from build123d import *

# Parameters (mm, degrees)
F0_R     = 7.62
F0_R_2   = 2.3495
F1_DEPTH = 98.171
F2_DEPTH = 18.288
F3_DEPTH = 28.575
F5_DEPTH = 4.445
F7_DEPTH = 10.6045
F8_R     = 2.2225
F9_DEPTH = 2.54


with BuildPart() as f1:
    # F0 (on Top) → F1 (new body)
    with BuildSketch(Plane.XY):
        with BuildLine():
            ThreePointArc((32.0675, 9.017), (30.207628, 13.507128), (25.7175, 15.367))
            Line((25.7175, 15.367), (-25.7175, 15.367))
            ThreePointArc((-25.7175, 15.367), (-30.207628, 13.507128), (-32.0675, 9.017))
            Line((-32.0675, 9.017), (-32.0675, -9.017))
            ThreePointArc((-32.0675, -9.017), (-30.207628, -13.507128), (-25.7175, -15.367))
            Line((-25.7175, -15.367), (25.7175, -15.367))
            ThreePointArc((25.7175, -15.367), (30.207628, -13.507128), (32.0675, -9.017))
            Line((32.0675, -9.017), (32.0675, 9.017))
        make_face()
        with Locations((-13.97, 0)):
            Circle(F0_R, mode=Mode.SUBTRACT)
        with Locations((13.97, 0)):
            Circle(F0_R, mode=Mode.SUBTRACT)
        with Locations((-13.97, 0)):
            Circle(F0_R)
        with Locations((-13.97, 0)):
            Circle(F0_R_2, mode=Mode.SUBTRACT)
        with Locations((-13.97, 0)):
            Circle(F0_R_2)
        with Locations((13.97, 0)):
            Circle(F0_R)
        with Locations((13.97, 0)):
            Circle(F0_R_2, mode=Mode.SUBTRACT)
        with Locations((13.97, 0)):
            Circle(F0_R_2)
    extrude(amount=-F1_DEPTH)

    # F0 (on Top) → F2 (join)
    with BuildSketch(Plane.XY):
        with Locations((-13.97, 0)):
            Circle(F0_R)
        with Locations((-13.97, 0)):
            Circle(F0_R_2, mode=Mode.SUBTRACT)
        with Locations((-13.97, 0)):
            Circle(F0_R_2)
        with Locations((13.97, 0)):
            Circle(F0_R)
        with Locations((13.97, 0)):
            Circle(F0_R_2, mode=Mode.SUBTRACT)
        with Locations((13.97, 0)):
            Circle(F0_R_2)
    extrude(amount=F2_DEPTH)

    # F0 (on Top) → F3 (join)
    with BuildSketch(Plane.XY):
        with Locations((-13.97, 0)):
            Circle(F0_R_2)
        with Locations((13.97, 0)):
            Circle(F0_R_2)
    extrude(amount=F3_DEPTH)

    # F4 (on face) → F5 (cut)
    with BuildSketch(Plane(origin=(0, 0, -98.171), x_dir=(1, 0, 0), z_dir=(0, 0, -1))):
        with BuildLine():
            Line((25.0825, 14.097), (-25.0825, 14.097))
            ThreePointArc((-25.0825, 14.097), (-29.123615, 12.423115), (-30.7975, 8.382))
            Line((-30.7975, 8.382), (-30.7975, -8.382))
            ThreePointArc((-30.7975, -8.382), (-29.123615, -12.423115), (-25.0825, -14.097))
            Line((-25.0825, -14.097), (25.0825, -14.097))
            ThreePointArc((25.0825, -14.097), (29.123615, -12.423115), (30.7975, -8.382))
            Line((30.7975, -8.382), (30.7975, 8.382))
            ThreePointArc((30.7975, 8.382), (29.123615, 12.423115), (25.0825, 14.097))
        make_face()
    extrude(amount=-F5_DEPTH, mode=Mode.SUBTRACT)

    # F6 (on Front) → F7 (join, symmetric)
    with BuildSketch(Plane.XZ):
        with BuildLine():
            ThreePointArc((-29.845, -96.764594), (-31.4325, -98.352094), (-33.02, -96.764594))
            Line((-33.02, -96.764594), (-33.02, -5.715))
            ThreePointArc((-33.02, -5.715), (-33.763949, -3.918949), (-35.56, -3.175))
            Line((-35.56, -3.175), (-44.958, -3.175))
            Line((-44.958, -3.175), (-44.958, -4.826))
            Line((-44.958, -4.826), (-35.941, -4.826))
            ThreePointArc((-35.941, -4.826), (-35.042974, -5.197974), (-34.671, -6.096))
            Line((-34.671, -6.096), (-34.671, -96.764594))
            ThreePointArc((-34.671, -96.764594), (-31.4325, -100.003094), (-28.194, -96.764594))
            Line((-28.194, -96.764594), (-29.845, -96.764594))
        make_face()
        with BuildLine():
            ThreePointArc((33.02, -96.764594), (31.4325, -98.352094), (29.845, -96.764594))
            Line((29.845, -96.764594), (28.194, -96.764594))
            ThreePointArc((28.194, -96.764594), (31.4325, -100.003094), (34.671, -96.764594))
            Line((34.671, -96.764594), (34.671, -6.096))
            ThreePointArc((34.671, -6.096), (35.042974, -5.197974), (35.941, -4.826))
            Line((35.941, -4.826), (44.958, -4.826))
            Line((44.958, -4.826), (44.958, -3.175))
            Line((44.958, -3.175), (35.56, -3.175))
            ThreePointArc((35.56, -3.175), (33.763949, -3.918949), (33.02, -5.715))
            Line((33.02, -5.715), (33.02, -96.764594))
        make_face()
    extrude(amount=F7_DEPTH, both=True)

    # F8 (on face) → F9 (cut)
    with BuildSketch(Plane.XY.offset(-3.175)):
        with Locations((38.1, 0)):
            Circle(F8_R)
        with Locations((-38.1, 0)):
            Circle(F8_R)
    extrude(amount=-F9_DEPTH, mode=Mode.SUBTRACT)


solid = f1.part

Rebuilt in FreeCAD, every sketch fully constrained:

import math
import FreeCAD as App
import Part
import Sketcher

V = App.Vector
Q = App.Units.Quantity

doc = App.newDocument("Part")
body = doc.addObject("PartDesign::Body", "Body")

# Sketch on XY plane
sketch1 = body.newObject("Sketcher::SketchObject", "Sketch")
sketch1.AttachmentSupport = (doc.getObject("XY_Plane"), [""])
sketch1.MapMode = "FlatFace"
sketch1.addGeometry([
    Part.ArcOfCircle(Part.Circle(V(26, 9, 0), V(0, 0, 1), 6), math.radians(0), math.radians(90)),  # 0
    Part.LineSegment(V(26, 15, 0), V(-26, 15, 0)),  # 1
    Part.ArcOfCircle(Part.Circle(V(-26, 9, 0), V(0, 0, 1), 6), math.radians(90), math.radians(180)),  # 2
    Part.LineSegment(V(-32, 9, 0), V(-32, -9, 0)),  # 3
    Part.ArcOfCircle(Part.Circle(V(-26, -9, 0), V(0, 0, 1), 6), math.radians(-180), math.radians(-90)),  # 4
    Part.LineSegment(V(-26, -15, 0), V(26, -15, 0)),  # 5
    Part.ArcOfCircle(Part.Circle(V(26, -9, 0), V(0, 0, 1), 6), math.radians(-90), math.radians(0)),  # 6
    Part.LineSegment(V(32, -9, 0), V(32, 9, 0)),  # 7
], False)
sketch1.addConstraint([
    Sketcher.Constraint("Tangent", 0, 2, 1, 1),
    Sketcher.Constraint("Tangent", 1, 2, 2, 1),
    Sketcher.Constraint("Tangent", 2, 2, 3, 1),
    Sketcher.Constraint("Tangent", 3, 2, 4, 1),
    Sketcher.Constraint("Tangent", 4, 2, 5, 1),
    Sketcher.Constraint("Tangent", 5, 2, 6, 1),
    Sketcher.Constraint("Tangent", 6, 2, 7, 1),
    Sketcher.Constraint("Tangent", 7, 2, 0, 1),
    Sketcher.Constraint("Horizontal", 1),
    Sketcher.Constraint("Vertical", 3),
    Sketcher.Constraint("Horizontal", 5),
    Sketcher.Constraint("Vertical", 7),
    Sketcher.Constraint("Equal", 0, 2),
    Sketcher.Constraint("Equal", 2, 4),
    Sketcher.Constraint("Equal", 4, 6),
    Sketcher.Constraint("Symmetric", 0, 3, 4, 3, -1, 1),
    Sketcher.Constraint("Radius", 0, Q("0.25 in")),
    Sketcher.Constraint("DistanceY", 3, 2, 3, 1, Q("0.71 in")),
    Sketcher.Constraint("DistanceX", 1, 2, 1, 1, Q("2.025 in")),
])
pad1 = body.newObject("PartDesign::Pad", "Pad")
pad1.Profile = sketch1
pad1.Length = Q("3.865 in")
pad1.Reversed = True

# Sketch on XY plane
sketch2 = body.newObject("Sketcher::SketchObject", "Sketch001")
sketch2.AttachmentSupport = (doc.getObject("XY_Plane"), [""])
sketch2.MapMode = "FlatFace"
sketch2.addGeometry([
    Part.Circle(V(-14, 0, 0), V(0, 0, 1), 8),
    Part.Circle(V(14, 0, 0), V(0, 0, 1), 8),
], False)
sketch2.addConstraint([
    Sketcher.Constraint("Equal", 0, 1),
    Sketcher.Constraint("Symmetric", 0, 3, 1, 3, -1, 1),
    Sketcher.Constraint("PointOnObject", 0, 3, -1),
    Sketcher.Constraint("Diameter", 0, Q("0.6 in")),
    Sketcher.Constraint("DistanceX", 0, 3, 1, 3, Q("1.1 in")),
])
pad2 = body.newObject("PartDesign::Pad", "Pad001")
pad2.Profile = sketch2
pad2.Length = Q("0.72 in")

# Sketch on XY plane
sketch3 = body.newObject("Sketcher::SketchObject", "Sketch002")
sketch3.AttachmentSupport = (doc.getObject("XY_Plane"), [""])
sketch3.MapMode = "FlatFace"
sketch3.addGeometry([
    Part.Circle(V(-14, 0, 0), V(0, 0, 1), 2.3),
    Part.Circle(V(14, 0, 0), V(0, 0, 1), 2.3),
], False)
sketch3.addConstraint([
    Sketcher.Constraint("Equal", 0, 1),
    Sketcher.Constraint("Symmetric", 0, 3, 1, 3, -1, 1),
    Sketcher.Constraint("PointOnObject", 0, 3, -1),
    Sketcher.Constraint("Diameter", 0, Q("0.185 in")),
    Sketcher.Constraint("DistanceX", 0, 3, 1, 3, Q("1.1 in")),
])
pad3 = body.newObject("PartDesign::Pad", "Pad002")
pad3.Profile = sketch3
pad3.Length = Q("1.125 in")

# Sketch on XY plane
sketch4 = body.newObject("Sketcher::SketchObject", "Sketch003")
sketch4.AttachmentSupport = (doc.getObject("XY_Plane"), [""])
sketch4.MapMode = "FlatFace"
sketch4.AttachmentOffset = App.Placement(V(0, 0, -3.865 * 25.4), App.Rotation())
sketch4.addGeometry([
    Part.LineSegment(V(25, -14, 0), V(-25, -14, 0)),  # 0
    Part.ArcOfCircle(Part.Circle(V(-25, -8, 0), V(0, 0, 1), 6), math.radians(-180), math.radians(-90)),  # 1
    Part.LineSegment(V(-31, -8, 0), V(-31, 8, 0)),  # 2
    Part.ArcOfCircle(Part.Circle(V(-25, 8, 0), V(0, 0, 1), 6), math.radians(90), math.radians(180)),  # 3
    Part.LineSegment(V(-25, 14, 0), V(25, 14, 0)),  # 4
    Part.ArcOfCircle(Part.Circle(V(25, 8, 0), V(0, 0, 1), 6), math.radians(0), math.radians(90)),  # 5
    Part.LineSegment(V(31, 8, 0), V(31, -8, 0)),  # 6
    Part.ArcOfCircle(Part.Circle(V(25, -8, 0), V(0, 0, 1), 6), math.radians(-90), math.radians(0)),  # 7
], False)
sketch4.addConstraint([
    Sketcher.Constraint("Tangent", 0, 2, 1, 2),
    Sketcher.Constraint("Tangent", 1, 1, 2, 1),
    Sketcher.Constraint("Tangent", 2, 2, 3, 2),
    Sketcher.Constraint("Tangent", 3, 1, 4, 1),
    Sketcher.Constraint("Tangent", 4, 2, 5, 2),
    Sketcher.Constraint("Tangent", 5, 1, 6, 1),
    Sketcher.Constraint("Tangent", 6, 2, 7, 2),
    Sketcher.Constraint("Tangent", 7, 1, 0, 1),
    Sketcher.Constraint("Horizontal", 0),
    Sketcher.Constraint("Vertical", 2),
    Sketcher.Constraint("Horizontal", 4),
    Sketcher.Constraint("Vertical", 6),
    Sketcher.Constraint("Equal", 1, 3),
    Sketcher.Constraint("Equal", 3, 5),
    Sketcher.Constraint("Equal", 5, 7),
    Sketcher.Constraint("Symmetric", 1, 3, 5, 3, -1, 1),
    Sketcher.Constraint("Radius", 1, Q("0.225 in")),
    Sketcher.Constraint("DistanceY", 2, 1, 2, 2, Q("0.66 in")),
    Sketcher.Constraint("DistanceX", 1, 1, 7, 3, Q("2.2 in")),
])
pocket1 = body.newObject("PartDesign::Pocket", "Pocket")
pocket1.Profile = sketch4
pocket1.Length = Q("0.175 in")
pocket1.Reversed = True

# Sketch on XZ plane
sketch5 = body.newObject("Sketcher::SketchObject", "Sketch004")
sketch5.AttachmentSupport = (doc.getObject("XZ_Plane"), [""])
sketch5.MapMode = "FlatFace"
sketch5.addGeometry([
    Part.ArcOfCircle(Part.Circle(V(-31.4, -96.8, 0), V(0, 0, 1), 1.6), math.radians(180), math.radians(360)),  # 0
    Part.LineSegment(V(-33, -96.8, 0), V(-33, -5.7, 0)),  # 1
    Part.ArcOfCircle(Part.Circle(V(-35.6, -5.7, 0), V(0, 0, 1), 2.5), math.radians(0), math.radians(90)),  # 2
    Part.LineSegment(V(-35.6, -3.2, 0), V(-45, -3.2, 0)),  # 3
    Part.LineSegment(V(-45, -3.2, 0), V(-45, -4.8, 0)),  # 4
    Part.LineSegment(V(-45, -4.8, 0), V(-35.9, -4.8, 0)),  # 5
    Part.ArcOfCircle(Part.Circle(V(-35.9, -6.1, 0), V(0, 0, 1), 1.3), math.radians(0), math.radians(90)),  # 6
    Part.LineSegment(V(-34.7, -6.1, 0), V(-34.7, -96.8, 0)),  # 7
    Part.ArcOfCircle(Part.Circle(V(-31.4, -96.8, 0), V(0, 0, 1), 3.2), math.radians(180), math.radians(360)),  # 8
    Part.LineSegment(V(-28.2, -96.8, 0), V(-29.8, -96.8, 0)),  # 9
    Part.ArcOfCircle(Part.Circle(V(31.4, -96.8, 0), V(0, 0, 1), 1.6), math.radians(180), math.radians(360)),  # 10
    Part.LineSegment(V(29.8, -96.8, 0), V(28.2, -96.8, 0)),  # 11
    Part.ArcOfCircle(Part.Circle(V(31.4, -96.8, 0), V(0, 0, 1), 3.2), math.radians(180), math.radians(360)),  # 12
    Part.LineSegment(V(34.7, -96.8, 0), V(34.7, -6.1, 0)),  # 13
    Part.ArcOfCircle(Part.Circle(V(35.9, -6.1, 0), V(0, 0, 1), 1.3), math.radians(90), math.radians(180)),  # 14
    Part.LineSegment(V(35.9, -4.8, 0), V(45, -4.8, 0)),  # 15
    Part.LineSegment(V(45, -4.8, 0), V(45, -3.2, 0)),  # 16
    Part.LineSegment(V(45, -3.2, 0), V(35.6, -3.2, 0)),  # 17
    Part.ArcOfCircle(Part.Circle(V(35.6, -5.7, 0), V(0, 0, 1), 2.5), math.radians(90), math.radians(180)),  # 18
    Part.LineSegment(V(33, -5.7, 0), V(33, -96.8, 0)),  # 19
], False)
sketch5.addConstraint([
    Sketcher.Constraint("Tangent", 0, 1, 1, 1),
    Sketcher.Constraint("Tangent", 1, 2, 2, 1),
    Sketcher.Constraint("Tangent", 2, 2, 3, 1),
    Sketcher.Constraint("Coincident", 3, 2, 4, 1),
    Sketcher.Constraint("Coincident", 4, 2, 5, 1),
    Sketcher.Constraint("Tangent", 5, 2, 6, 2),
    Sketcher.Constraint("Tangent", 6, 1, 7, 1),
    Sketcher.Constraint("Tangent", 7, 2, 8, 1),
    Sketcher.Constraint("Coincident", 8, 2, 9, 1),
    Sketcher.Constraint("Coincident", 9, 2, 0, 2),
    Sketcher.Constraint("Coincident", 10, 1, 11, 1),
    Sketcher.Constraint("Coincident", 11, 2, 12, 1),
    Sketcher.Constraint("Tangent", 12, 2, 13, 1),
    Sketcher.Constraint("Tangent", 13, 2, 14, 2),
    Sketcher.Constraint("Tangent", 14, 1, 15, 1),
    Sketcher.Constraint("Coincident", 15, 2, 16, 1),
    Sketcher.Constraint("Coincident", 16, 2, 17, 1),
    Sketcher.Constraint("Tangent", 17, 2, 18, 1),
    Sketcher.Constraint("Tangent", 18, 2, 19, 1),
    Sketcher.Constraint("Tangent", 19, 2, 10, 2),
    Sketcher.Constraint("Vertical", 1),
    Sketcher.Constraint("Horizontal", 3),
    Sketcher.Constraint("Vertical", 4),
    Sketcher.Constraint("Horizontal", 5),
    Sketcher.Constraint("Vertical", 7),
    Sketcher.Constraint("Horizontal", 9),
    Sketcher.Constraint("Horizontal", 11),
    Sketcher.Constraint("Vertical", 13),
    Sketcher.Constraint("Horizontal", 15),
    Sketcher.Constraint("Vertical", 16),
    Sketcher.Constraint("Horizontal", 17),
    Sketcher.Constraint("Vertical", 19),
    Sketcher.Constraint("Coincident", 8, 3, 0, 3),
    Sketcher.Constraint("Coincident", 12, 3, 10, 3),
    Sketcher.Constraint("Equal", 0, 10),
    Sketcher.Constraint("Equal", 8, 12),
    Sketcher.Constraint("Equal", 6, 14),
    Sketcher.Constraint("Equal", 2, 18),
    Sketcher.Constraint("Symmetric", 0, 3, 10, 3, -2),
    Sketcher.Constraint("Symmetric", 4, 2, 15, 2, -2),
    Sketcher.Constraint("Horizontal", 2, 3, 18, 3),
    Sketcher.Constraint("Horizontal", 7, 2, 8, 2),
    Sketcher.Constraint("Horizontal", 9, 2, 10, 1),
    Sketcher.Constraint("Equal", 11, 4),
    Sketcher.Constraint("Radius", 2, Q("0.1 in")),
    Sketcher.Constraint("Radius", 6, Q("0.0499999 in")),
    Sketcher.Constraint("Radius", 0, Q("0.0625 in")),
    Sketcher.Constraint("DistanceX", 3, 2, 3, 1, Q("0.37 in")),
    Sketcher.Constraint("DistanceX", 2, 3, -1, 1, Q("1.4 in")),
    Sketcher.Constraint("Radius", 8, Q("0.1275 in")),
    Sketcher.Constraint("DistanceY", 6, 3, -1, 1, Q("0.2399999 in")),
    Sketcher.Constraint("DistanceY", 1, 1, 1, 2, 91.049594),
])
pad4 = body.newObject("PartDesign::Pad", "Pad003")
pad4.Profile = sketch5
pad4.Length = Q("0.835 in")
pad4.Midplane = True

# Sketch on XY plane
sketch6 = body.newObject("Sketcher::SketchObject", "Sketch005")
sketch6.AttachmentSupport = (doc.getObject("XY_Plane"), [""])
sketch6.MapMode = "FlatFace"
sketch6.AttachmentOffset = App.Placement(V(0, 0, -0.125 * 25.4), App.Rotation())
sketch6.addGeometry([
    Part.Circle(V(38.1, 0, 0), V(0, 0, 1), 2.2),
    Part.Circle(V(-38.1, 0, 0), V(0, 0, 1), 2.2),
], False)
sketch6.addConstraint([
    Sketcher.Constraint("Equal", 0, 1),
    Sketcher.Constraint("Symmetric", 0, 3, 1, 3, -1, 1),
    Sketcher.Constraint("PointOnObject", 0, 3, -1),
    Sketcher.Constraint("Diameter", 0, Q("0.175 in")),
    Sketcher.Constraint("DistanceX", 1, 3, 0, 3, Q("3 in")),
])
pocket2 = body.newObject("PartDesign::Pocket", "Pocket001")
pocket2.Profile = sketch6
pocket2.Length = Q("0.1 in")

doc.recompute()
